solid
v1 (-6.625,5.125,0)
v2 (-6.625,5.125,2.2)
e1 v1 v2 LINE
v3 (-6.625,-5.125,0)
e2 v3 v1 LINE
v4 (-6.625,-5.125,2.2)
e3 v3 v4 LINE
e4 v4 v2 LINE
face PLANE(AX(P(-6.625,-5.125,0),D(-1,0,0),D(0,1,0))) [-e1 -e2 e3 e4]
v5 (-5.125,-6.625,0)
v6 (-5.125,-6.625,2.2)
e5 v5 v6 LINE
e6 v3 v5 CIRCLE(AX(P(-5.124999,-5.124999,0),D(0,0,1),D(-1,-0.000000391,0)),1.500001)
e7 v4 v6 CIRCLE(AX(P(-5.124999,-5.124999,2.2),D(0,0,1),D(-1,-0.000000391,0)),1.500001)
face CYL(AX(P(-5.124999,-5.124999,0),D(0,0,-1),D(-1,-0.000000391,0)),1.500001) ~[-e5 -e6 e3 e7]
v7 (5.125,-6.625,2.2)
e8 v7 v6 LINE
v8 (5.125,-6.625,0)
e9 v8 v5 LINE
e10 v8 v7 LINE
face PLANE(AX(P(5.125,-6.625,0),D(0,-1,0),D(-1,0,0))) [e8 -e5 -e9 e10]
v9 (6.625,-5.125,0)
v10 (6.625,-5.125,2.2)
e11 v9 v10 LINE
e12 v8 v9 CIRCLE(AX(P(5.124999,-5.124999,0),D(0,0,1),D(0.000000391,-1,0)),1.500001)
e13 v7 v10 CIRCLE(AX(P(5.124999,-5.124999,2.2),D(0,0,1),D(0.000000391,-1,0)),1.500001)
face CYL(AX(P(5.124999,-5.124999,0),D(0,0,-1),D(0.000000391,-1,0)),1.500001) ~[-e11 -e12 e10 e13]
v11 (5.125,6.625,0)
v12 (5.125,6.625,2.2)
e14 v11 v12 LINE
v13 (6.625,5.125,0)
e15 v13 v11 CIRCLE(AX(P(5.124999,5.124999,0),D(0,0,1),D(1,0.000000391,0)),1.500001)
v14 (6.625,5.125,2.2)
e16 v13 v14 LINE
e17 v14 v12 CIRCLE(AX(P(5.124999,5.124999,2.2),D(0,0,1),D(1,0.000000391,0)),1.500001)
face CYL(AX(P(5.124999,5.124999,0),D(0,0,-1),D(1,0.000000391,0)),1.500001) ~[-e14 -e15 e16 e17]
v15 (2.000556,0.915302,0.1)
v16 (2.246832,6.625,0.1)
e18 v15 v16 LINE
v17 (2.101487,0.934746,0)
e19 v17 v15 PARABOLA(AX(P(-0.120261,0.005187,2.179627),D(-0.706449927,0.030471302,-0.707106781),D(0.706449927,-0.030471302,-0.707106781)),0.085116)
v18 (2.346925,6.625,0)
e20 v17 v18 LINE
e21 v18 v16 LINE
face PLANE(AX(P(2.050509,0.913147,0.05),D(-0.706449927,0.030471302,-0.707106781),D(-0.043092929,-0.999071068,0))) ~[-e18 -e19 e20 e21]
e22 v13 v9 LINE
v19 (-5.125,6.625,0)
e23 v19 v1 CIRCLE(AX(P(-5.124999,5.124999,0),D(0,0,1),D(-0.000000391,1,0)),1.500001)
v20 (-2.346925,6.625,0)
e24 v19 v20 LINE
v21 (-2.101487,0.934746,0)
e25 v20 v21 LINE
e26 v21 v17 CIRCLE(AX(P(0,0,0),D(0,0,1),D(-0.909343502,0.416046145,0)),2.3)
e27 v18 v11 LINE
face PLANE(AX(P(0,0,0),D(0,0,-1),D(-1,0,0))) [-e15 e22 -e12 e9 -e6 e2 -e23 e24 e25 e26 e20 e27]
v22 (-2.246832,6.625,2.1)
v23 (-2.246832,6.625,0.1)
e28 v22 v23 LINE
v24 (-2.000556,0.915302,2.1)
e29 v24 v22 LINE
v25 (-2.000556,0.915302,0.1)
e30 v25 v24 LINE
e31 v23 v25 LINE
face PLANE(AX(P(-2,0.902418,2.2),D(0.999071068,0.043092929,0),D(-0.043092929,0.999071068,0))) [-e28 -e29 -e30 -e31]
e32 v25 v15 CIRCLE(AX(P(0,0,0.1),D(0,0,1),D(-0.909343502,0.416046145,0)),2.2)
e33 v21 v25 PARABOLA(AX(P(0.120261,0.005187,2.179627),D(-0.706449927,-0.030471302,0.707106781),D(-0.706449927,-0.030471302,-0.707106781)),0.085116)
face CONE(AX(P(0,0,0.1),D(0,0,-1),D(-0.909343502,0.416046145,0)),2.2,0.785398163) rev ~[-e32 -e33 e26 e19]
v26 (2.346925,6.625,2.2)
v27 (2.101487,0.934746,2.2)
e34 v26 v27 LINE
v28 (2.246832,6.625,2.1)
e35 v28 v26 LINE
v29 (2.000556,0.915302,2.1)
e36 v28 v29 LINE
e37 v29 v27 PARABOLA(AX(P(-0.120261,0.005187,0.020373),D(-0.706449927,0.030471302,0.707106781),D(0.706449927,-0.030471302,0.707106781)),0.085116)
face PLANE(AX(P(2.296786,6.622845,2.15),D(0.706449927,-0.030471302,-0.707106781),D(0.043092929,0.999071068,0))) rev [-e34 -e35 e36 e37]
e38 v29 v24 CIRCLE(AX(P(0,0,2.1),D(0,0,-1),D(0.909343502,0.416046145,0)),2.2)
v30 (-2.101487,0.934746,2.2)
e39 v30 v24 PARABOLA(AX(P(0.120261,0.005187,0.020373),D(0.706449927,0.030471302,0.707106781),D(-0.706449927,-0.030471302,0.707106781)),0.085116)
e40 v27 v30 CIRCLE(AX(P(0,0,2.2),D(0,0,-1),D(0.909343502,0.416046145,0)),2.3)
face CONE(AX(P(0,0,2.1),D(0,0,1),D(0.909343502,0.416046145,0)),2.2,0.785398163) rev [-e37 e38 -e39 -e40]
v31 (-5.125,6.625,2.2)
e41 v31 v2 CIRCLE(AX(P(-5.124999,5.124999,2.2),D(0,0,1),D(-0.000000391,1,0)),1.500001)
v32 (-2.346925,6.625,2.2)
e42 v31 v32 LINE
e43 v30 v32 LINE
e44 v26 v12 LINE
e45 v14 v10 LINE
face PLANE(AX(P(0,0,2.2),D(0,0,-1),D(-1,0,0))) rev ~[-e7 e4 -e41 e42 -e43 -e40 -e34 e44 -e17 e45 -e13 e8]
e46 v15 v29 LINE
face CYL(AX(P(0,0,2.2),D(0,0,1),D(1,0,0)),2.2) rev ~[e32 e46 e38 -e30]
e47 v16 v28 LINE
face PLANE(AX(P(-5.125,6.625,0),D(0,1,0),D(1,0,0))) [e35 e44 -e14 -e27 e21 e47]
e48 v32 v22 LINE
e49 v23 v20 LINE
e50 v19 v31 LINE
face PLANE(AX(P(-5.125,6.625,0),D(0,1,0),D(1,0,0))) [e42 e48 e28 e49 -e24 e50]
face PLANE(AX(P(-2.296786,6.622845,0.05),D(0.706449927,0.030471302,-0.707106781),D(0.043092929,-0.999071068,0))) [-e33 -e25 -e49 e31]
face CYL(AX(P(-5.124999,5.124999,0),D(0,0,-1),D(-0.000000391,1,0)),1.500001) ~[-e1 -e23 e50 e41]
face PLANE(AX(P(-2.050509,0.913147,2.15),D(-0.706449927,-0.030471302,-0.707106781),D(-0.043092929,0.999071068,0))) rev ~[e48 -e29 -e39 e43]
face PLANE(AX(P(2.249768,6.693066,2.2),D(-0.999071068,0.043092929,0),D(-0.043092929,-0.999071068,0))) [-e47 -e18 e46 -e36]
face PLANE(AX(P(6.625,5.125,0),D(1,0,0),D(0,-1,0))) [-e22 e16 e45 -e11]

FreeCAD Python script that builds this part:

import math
import FreeCAD as App
import Part
import Sketcher

V = App.Vector
Q = App.Units.Quantity


def edges_at(feature, points):
    """Names of the edges that pass closest to the given points."""
    edges = feature.Shape.Edges
    near = lambda p: min(range(len(edges)), key=lambda i: edges[i].distToShape(Part.Vertex(*p))[0])
    return sorted({f"Edge{near(p) + 1}" for p in points})

doc = App.newDocument("Part")
params = doc.addObject("Spreadsheet::Sheet", "Params")
for row, (alias, value) in enumerate([
    ("sketch1_radius", "1.500001 mm"),
    ("sketch1_width", "10.25 mm"),
    ("pad1_length", "2.2 mm"),
    ("sketch2_diameter", "4.4 mm"),
    ("pocket1_length", "5 mm"),
    ("sketch3_width", "4 mm"),
    ("pocket2_length", "5 mm"),
    ("chamfer_size", "0.1 mm"),
    ("chamfer2_size", "0.1 mm"),
], start=1):
    params.set(f"A{row}", alias)
    params.set(f"B{row}", "=" + value)
    params.setAlias(f"B{row}", alias)

body = doc.addObject("PartDesign::Body", "Body")

sketch1 = body.newObject("Sketcher::SketchObject", "Sketch")
sketch1.AttachmentSupport = (doc.getObject("XY_Plane"), [""])
sketch1.MapMode = "FlatFace"
sketch1.addGeometry([
    Part.LineSegment(V(5.1, 6.6, 0), V(-5.1, 6.6, 0)),
    Part.ArcOfCircle(Part.Circle(V(-5.1, 5.1, 0), V(0, 0, 1), 1.5), math.radians(90), math.radians(180)),
    Part.LineSegment(V(-6.6, 5.1, 0), V(-6.6, -5.1, 0)),
    Part.ArcOfCircle(Part.Circle(V(-5.1, -5.1, 0), V(0, 0, 1), 1.5), math.radians(-180), math.radians(-90)),
    Part.LineSegment(V(-5.1, -6.6, 0), V(5.1, -6.6, 0)),
    Part.ArcOfCircle(Part.Circle(V(5.1, -5.1, 0), V(0, 0, 1), 1.5), math.radians(-90), math.radians(0)),
    Part.LineSegment(V(6.6, -5.1, 0), V(6.6, 5.1, 0)),
    Part.ArcOfCircle(Part.Circle(V(5.1, 5.1, 0), V(0, 0, 1), 1.5), math.radians(0), math.radians(90)),
], False)
sketch1.addConstraint([
    Sketcher.Constraint("Tangent", 0, 2, 1, 1),
    Sketcher.Constraint("Tangent", 1, 2, 2, 1),
    Sketcher.Constraint("Tangent", 2, 2, 3, 1),
    Sketcher.Constraint("Tangent", 3, 2, 4, 1),
    Sketcher.Constraint("Tangent", 4, 2, 5, 1),
    Sketcher.Constraint("Tangent", 5, 2, 6, 1),
    Sketcher.Constraint("Tangent", 6, 2, 7, 1),
    Sketcher.Constraint("Tangent", 7, 2, 0, 1),
    Sketcher.Constraint("Horizontal", 0),
    Sketcher.Constraint("Vertical", 2),
    Sketcher.Constraint("Horizontal", 4),
    Sketcher.Constraint("Vertical", 6),
    Sketcher.Constraint("Equal", 1, 3),
    Sketcher.Constraint("Equal", 3, 5),
    Sketcher.Constraint("Equal", 5, 7),
    Sketcher.Constraint("Symmetric", 1, 3, 5, 3, -1, 1),
    Sketcher.Constraint("Equal", 4, 2),
    Sketcher.Constraint("Radius", 1, Q("1.500001 mm")),
    Sketcher.Constraint("DistanceX", 0, 2, 0, 1, Q("10.25 mm")),
])
sketch1.setExpression("Constraints[17]", "Params.sketch1_radius")
sketch1.setExpression("Constraints[18]", "Params.sketch1_width")
pad1 = body.newObject("PartDesign::Pad", "Pad")
pad1.Profile = sketch1
pad1.setExpression("Length", "Params.pad1_length")

sketch2 = body.newObject("Sketcher::SketchObject", "Sketch001")
sketch2.AttachmentSupport = (doc.getObject("XY_Plane"), [""])
sketch2.MapMode = "FlatFace"
sketch2.AttachmentOffset = App.Placement(V(0, 0, 2.2), App.Rotation())
sketch2.addGeometry(Part.Circle(V(0, 0, 0), V(0, 0, 1), 2.2), False)
sketch2.addConstraint([
    Sketcher.Constraint("Coincident", 0, 3, -1, 1),
    Sketcher.Constraint("Diameter", 0, Q("4.4 mm")),
])
sketch2.setExpression("Constraints[1]", "Params.sketch2_diameter")
pocket1 = body.newObject("PartDesign::Pocket", "Pocket")
pocket1.Profile = sketch2
pocket1.setExpression("Length", "Params.pocket1_length")

sketch3 = body.newObject("Sketcher::SketchObject", "Sketch002")
sketch3.AttachmentSupport = (doc.getObject("XY_Plane"), [""])
sketch3.MapMode = "FlatFace"
sketch3.AttachmentOffset = App.Placement(V(0, 0, 2.2), App.Rotation())
sketch3.addGeometry([
    Part.LineSegment(V(-2.25, 6.69, 0), V(-2, 0.9, 0)),
    Part.LineSegment(V(-2, 0.9, 0), V(2, 0.9, 0)),
    Part.LineSegment(V(2, 0.9, 0), V(2.25, 6.69, 0)),
    Part.ArcOfCircle(Part.Circle(V(2, 6.7, 0), V(0, 0, 1), 0.25), math.radians(-2), math.radians(90)),
    Part.LineSegment(V(2, 6.95, 0), V(-2, 6.95, 0)),
    Part.ArcOfCircle(Part.Circle(V(-2, 6.7, 0), V(0, 0, 1), 0.25), math.radians(90), math.radians(182)),
], False)
sketch3.addConstraint([
    Sketcher.Constraint("Coincident", 0, 2, 1, 1),
    Sketcher.Constraint("Coincident", 1, 2, 2, 1),
    Sketcher.Constraint("Coincident", 2, 2, 3, 1),
    Sketcher.Constraint("Coincident", 3, 2, 4, 1),
    Sketcher.Constraint("Coincident", 4, 2, 5, 1),
    Sketcher.Constraint("Coincident", 5, 2, 0, 1),
    Sketcher.Constraint("Horizontal", 1),
    Sketcher.Constraint("Horizontal", 4),
    Sketcher.Constraint("Equal", 3, 5),
    Sketcher.Constraint("Symmetric", 2, 2, 5, 2, -2),
    Sketcher.Constraint("Vertical", 1, 2, 3, 2),
    Sketcher.Constraint("Vertical", 0, 2, 4, 2),
    Sketcher.Constraint("Equal", 0, 2),
    Sketcher.Constraint("DistanceX", 1, 1, 1, 2, Q("4 mm")),
    Sketcher.Constraint("Radius", 3, Q("0.250002 mm")),
    Sketcher.Constraint("DistanceY", -1, 1, 0, 2, Q("0.902418 mm")),
    Sketcher.Constraint("DistanceX", -1, 1, 2, 2, Q("2.249768 mm")),
    Sketcher.Constraint("DistanceY", -1, 1, 3, 2, Q("6.95384 mm")),
    Sketcher.Constraint("DistanceX", 3, 3, 2, 2, Q("0.24977 mm")),
])
sketch3.setExpression("Constraints[13]", "Params.sketch3_width")
pocket2 = body.newObject("PartDesign::Pocket", "Pocket001")
pocket2.Profile = sketch3
pocket2.setExpression("Length", "Params.pocket2_length")
doc.recompute()

chamfer = body.newObject("PartDesign::Chamfer", "Chamfer")
chamfer.Base = (pocket2, edges_at(pocket2, [
    (-2.124, 3.77, 2.2),
    (0, -2.2, 2.2),
    (0, -2.2, 2.2),
    (2.124, 3.77, 2.2),
]))
chamfer.setExpression("Size", "Params.chamfer_size")
doc.recompute()

chamfer2 = body.newObject("PartDesign::Chamfer", "Chamfer001")
chamfer2.Base = (chamfer, edges_at(chamfer, [
    (0, -2.2, 0),
    (2.124, 3.77, 0),
    (0, -2.2, 0),
    (-2.124, 3.77, 0),
]))
chamfer2.setExpression("Size", "Params.chamfer2_size")

doc.recompute()
